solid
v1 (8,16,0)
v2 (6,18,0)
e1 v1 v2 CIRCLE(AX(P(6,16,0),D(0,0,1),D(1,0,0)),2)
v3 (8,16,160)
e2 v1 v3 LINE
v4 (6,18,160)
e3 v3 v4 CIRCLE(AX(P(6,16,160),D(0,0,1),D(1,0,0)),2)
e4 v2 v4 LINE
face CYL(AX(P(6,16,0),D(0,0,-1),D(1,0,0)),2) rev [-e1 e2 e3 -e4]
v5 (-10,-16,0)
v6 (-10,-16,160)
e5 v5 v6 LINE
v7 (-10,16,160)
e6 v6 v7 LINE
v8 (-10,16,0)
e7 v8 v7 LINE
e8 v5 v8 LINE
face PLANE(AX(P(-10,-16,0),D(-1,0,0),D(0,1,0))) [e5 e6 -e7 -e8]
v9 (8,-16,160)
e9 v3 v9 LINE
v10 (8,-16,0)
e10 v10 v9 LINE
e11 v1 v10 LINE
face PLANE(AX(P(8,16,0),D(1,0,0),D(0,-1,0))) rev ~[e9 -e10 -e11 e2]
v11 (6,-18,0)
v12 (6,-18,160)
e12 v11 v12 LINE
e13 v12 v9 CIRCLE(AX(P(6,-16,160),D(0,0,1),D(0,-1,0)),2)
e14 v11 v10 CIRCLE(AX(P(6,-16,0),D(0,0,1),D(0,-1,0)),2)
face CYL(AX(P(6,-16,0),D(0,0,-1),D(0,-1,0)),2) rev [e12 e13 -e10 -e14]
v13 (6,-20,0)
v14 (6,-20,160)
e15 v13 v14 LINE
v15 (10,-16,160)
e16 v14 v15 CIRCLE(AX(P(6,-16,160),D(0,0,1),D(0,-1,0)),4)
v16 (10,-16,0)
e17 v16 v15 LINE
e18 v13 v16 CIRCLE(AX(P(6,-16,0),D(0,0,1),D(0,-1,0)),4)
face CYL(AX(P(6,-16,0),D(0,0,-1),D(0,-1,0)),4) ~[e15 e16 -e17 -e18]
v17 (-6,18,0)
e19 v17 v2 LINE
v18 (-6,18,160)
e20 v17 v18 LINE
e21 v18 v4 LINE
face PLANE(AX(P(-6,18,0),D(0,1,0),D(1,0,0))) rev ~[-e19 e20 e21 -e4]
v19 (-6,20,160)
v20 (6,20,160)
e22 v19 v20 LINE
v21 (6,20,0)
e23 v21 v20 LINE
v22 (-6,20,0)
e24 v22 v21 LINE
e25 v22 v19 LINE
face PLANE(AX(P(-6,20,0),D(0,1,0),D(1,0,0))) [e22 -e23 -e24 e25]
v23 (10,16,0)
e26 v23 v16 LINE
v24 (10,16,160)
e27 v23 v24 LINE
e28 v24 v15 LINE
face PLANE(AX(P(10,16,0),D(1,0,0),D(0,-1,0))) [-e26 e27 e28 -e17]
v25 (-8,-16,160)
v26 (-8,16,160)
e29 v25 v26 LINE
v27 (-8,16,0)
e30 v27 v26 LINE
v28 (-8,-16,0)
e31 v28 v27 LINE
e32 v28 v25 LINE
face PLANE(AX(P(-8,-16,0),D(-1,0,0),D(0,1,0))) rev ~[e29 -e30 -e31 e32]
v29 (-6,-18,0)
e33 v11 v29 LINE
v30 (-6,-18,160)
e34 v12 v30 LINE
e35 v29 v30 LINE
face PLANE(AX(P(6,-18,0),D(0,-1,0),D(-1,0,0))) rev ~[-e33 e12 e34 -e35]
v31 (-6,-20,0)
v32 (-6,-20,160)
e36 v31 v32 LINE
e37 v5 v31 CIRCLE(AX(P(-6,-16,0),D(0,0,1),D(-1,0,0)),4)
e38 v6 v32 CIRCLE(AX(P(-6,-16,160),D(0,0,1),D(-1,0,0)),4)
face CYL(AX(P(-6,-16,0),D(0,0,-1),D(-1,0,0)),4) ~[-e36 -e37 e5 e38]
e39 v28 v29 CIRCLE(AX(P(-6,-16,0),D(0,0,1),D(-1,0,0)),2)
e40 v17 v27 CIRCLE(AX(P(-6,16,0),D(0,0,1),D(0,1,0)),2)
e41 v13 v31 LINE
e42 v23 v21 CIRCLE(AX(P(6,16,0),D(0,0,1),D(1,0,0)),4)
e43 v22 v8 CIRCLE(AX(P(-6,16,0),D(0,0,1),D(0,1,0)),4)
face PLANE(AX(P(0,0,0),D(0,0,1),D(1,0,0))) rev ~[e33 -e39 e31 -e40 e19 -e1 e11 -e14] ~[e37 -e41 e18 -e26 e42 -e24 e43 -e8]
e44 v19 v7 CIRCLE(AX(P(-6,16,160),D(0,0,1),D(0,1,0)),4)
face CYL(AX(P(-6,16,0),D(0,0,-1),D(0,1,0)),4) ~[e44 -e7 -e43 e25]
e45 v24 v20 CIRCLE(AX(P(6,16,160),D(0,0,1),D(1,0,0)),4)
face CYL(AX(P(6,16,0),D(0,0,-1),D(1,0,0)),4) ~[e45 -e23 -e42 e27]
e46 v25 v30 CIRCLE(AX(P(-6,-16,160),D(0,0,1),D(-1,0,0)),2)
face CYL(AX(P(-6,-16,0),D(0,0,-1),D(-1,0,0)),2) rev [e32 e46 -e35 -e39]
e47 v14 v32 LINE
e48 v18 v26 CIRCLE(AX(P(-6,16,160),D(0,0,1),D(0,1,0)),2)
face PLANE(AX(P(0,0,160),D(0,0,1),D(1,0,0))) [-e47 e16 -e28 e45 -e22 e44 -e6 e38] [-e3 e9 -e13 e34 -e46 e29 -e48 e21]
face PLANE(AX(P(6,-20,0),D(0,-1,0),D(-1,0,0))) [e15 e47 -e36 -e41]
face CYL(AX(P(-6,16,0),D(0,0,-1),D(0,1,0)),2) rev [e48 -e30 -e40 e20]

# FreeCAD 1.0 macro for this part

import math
import FreeCAD as App
import Part
import Sketcher
Q = App.Units.Quantity

doc = App.newDocument("Part")
params = doc.addObject("Spreadsheet::Sheet", "Params")
for row, (alias, value) in enumerate([
    ("sketch1_radius", "4 mm"),
    ("sketch1_radius2", "2 mm"),
    ("pad1_length", "160 mm"),
], start=1):
    params.set(f"A{row}", alias)
    params.set(f"B{row}", "=" + value)
    params.setAlias(f"B{row}", alias)

body = doc.addObject("PartDesign::Body", "Body")

sketch1 = body.newObject("Sketcher::SketchObject", "Sketch")
sketch1.AttachmentSupport = (doc.getObject("XY_Plane"), [""])
sketch1.MapMode = "FlatFace"
sketch1.addGeometry([
    Part.LineSegment(App.Vector(-10, 16, 0), App.Vector(-10, -16, 0)),
    Part.ArcOfCircle(Part.Circle(App.Vector(-6, -16, 0), App.Vector(0, 0, 1), 4), math.radians(180), math.radians(270)),
    Part.LineSegment(App.Vector(-6, -20, 0), App.Vector(6, -20, 0)),
    Part.ArcOfCircle(Part.Circle(App.Vector(6, -16, 0), App.Vector(0, 0, 1), 4), math.radians(-90), math.radians(0)),
    Part.LineSegment(App.Vector(10, -16, 0), App.Vector(10, 16, 0)),
    Part.ArcOfCircle(Part.Circle(App.Vector(6, 16, 0), App.Vector(0, 0, 1), 4), math.radians(0), math.radians(90)),
    Part.LineSegment(App.Vector(6, 20, 0), App.Vector(-6, 20, 0)),
    Part.ArcOfCircle(Part.Circle(App.Vector(-6, 16, 0), App.Vector(0, 0, 1), 4), math.radians(90), math.radians(180)),
    Part.ArcOfCircle(Part.Circle(App.Vector(-6, 16, 0), App.Vector(0, 0, 1), 2), math.radians(90), math.radians(180)),
    Part.LineSegment(App.Vector(-6, 18, 0), App.Vector(6, 18, 0)),
    Part.ArcOfCircle(Part.Circle(App.Vector(6, 16, 0), App.Vector(0, 0, 1), 2), math.radians(0), math.radians(90)),
    Part.LineSegment(App.Vector(8, 16, 0), App.Vector(8, -16, 0)),
    Part.ArcOfCircle(Part.Circle(App.Vector(6, -16, 0), App.Vector(0, 0, 1), 2), math.radians(-90), math.radians(0)),
    Part.LineSegment(App.Vector(6, -18, 0), App.Vector(-6, -18, 0)),
    Part.ArcOfCircle(Part.Circle(App.Vector(-6, -16, 0), App.Vector(0, 0, 1), 2), math.radians(180), math.radians(270)),
    Part.LineSegment(App.Vector(-8, -16, 0), App.Vector(-8, 16, 0)),
], False)
sketch1.addConstraint([
    Sketcher.Constraint("Tangent", 0, 2, 1, 1),
    Sketcher.Constraint("Tangent", 1, 2, 2, 1),
    Sketcher.Constraint("Tangent", 2, 2, 3, 1),
    Sketcher.Constraint("Tangent", 3, 2, 4, 1),
    Sketcher.Constraint("Tangent", 4, 2, 5, 1),
    Sketcher.Constraint("Tangent", 5, 2, 6, 1),
    Sketcher.Constraint("Tangent", 6, 2, 7, 1),
    Sketcher.Constraint("Tangent", 7, 2, 0, 1),
    Sketcher.Constraint("Tangent", 8, 1, 9, 1),
    Sketcher.Constraint("Tangent", 9, 2, 10, 2),
    Sketcher.Constraint("Tangent", 10, 1, 11, 1),
    Sketcher.Constraint("Tangent", 11, 2, 12, 2),
    Sketcher.Constraint("Tangent", 12, 1, 13, 1),
    Sketcher.Constraint("Tangent", 13, 2, 14, 2),
    Sketcher.Constraint("Tangent", 14, 1, 15, 1),
    Sketcher.Constraint("Tangent", 15, 2, 8, 2),
    Sketcher.Constraint("Vertical", 0),
    Sketcher.Constraint("Horizontal", 2),
    Sketcher.Constraint("Vertical", 4),
    Sketcher.Constraint("Horizontal", 6),
    Sketcher.Constraint("Horizontal", 9),
    Sketcher.Constraint("Vertical", 11),
    Sketcher.Constraint("Horizontal", 13),
    Sketcher.Constraint("Vertical", 15),
    Sketcher.Constraint("Coincident", 8, 3, 7, 3),
    Sketcher.Constraint("Coincident", 10, 3, 5, 3),
    Sketcher.Constraint("Coincident", 12, 3, 3, 3),
    Sketcher.Constraint("Equal", 1, 3),
    Sketcher.Constraint("Equal", 3, 5),
    Sketcher.Constraint("Equal", 5, 7),
    Sketcher.Constraint("Equal", 12, 14),
    Sketcher.Constraint("Symmetric", 1, 3, 5, 3, -1, 1),
    Sketcher.Constraint("Radius", 1, Q("4 mm")),
    Sketcher.Constraint("Radius", 8, Q("2 mm")),
    Sketcher.Constraint("DistanceX", 0, 2, -1, 1, Q("10 mm")),
    Sketcher.Constraint("DistanceY", 1, 2, -1, 1, Q("20 mm")),
])
sketch1.setExpression("Constraints[32]", "Params.sketch1_radius")
sketch1.setExpression("Constraints[33]", "Params.sketch1_radius2")
pad1 = body.newObject("PartDesign::Pad", "Pad")
pad1.Profile = sketch1
pad1.setExpression("Length", "Params.pad1_length")

doc.recompute()
